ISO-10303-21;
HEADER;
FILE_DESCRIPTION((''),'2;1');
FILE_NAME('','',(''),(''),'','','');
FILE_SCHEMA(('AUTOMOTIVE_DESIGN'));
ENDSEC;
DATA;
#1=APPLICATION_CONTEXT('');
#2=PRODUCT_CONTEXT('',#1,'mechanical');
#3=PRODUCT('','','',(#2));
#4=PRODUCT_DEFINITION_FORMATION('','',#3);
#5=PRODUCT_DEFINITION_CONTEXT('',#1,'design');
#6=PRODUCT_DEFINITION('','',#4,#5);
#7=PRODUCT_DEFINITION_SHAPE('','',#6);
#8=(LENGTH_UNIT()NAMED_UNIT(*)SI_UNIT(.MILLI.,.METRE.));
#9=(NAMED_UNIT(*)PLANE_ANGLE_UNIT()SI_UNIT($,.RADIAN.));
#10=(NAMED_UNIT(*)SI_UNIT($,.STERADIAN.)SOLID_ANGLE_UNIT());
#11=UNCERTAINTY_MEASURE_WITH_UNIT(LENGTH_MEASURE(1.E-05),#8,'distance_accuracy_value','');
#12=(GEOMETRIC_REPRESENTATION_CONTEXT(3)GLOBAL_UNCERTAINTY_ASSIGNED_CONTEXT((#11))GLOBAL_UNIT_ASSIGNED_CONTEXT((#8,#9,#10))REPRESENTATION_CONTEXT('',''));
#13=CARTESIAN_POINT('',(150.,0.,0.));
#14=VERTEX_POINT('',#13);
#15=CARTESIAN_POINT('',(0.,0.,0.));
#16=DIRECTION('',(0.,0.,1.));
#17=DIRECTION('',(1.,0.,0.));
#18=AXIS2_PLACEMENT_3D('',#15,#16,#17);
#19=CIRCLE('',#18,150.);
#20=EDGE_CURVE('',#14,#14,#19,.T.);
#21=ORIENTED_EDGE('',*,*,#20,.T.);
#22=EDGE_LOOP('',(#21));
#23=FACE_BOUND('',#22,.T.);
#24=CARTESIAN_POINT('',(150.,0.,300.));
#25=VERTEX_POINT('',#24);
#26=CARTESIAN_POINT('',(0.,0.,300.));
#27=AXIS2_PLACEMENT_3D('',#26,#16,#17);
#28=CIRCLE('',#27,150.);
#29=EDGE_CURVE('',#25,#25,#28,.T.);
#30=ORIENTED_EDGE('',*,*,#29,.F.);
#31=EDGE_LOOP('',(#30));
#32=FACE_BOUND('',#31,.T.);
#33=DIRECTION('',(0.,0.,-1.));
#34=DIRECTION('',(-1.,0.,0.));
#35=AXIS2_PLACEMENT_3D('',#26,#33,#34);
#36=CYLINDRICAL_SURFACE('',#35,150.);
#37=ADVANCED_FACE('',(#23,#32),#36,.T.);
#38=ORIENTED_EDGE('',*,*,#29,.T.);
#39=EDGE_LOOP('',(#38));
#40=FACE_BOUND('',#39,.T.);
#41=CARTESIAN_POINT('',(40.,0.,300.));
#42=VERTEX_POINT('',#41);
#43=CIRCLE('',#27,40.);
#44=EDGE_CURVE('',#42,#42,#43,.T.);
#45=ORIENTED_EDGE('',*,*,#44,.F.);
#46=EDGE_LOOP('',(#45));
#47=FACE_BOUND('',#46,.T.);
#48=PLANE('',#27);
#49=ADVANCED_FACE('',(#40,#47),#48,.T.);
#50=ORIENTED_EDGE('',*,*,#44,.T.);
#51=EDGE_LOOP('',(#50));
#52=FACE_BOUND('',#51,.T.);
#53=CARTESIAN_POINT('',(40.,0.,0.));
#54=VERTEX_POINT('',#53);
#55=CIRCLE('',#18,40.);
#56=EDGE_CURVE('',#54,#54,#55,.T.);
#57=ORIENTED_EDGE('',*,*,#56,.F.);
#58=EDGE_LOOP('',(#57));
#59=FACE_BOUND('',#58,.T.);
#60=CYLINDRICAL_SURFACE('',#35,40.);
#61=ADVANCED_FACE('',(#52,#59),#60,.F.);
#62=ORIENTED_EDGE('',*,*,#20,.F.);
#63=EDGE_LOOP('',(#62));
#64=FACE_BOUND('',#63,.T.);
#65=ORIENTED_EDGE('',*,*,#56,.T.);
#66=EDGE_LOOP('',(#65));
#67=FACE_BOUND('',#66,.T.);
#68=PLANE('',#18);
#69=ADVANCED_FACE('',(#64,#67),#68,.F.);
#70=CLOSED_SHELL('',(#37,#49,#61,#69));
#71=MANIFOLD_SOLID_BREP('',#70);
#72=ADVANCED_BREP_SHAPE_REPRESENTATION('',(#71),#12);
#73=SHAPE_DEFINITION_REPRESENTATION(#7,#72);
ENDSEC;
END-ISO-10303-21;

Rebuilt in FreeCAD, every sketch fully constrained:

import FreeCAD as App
import Part
import Sketcher

V = App.Vector

doc = App.newDocument("Part")
body = doc.addObject("PartDesign::Body", "Body")

sketch1 = body.newObject("Sketcher::SketchObject", "Sketch")
sketch1.AttachmentSupport = (doc.getObject("XY_Plane"), [""])
sketch1.MapMode = "FlatFace"
sketch1.addGeometry([
    Part.Circle(V(0, 0, 0), V(0, 0, 1), 150),
    Part.Circle(V(0, 0, 0), V(0, 0, 1), 40),
], False)
sketch1.addConstraint([
    Sketcher.Constraint("Coincident", 0, 3, -1, 1),
    Sketcher.Constraint("Coincident", 1, 3, -1, 1),
    Sketcher.Constraint("Diameter", 0, 300.0),
    Sketcher.Constraint("Diameter", 1, 80.0),
])
pad1 = body.newObject("PartDesign::Pad", "Pad")
pad1.Profile = sketch1
pad1.Length = 300

doc.recompute()
